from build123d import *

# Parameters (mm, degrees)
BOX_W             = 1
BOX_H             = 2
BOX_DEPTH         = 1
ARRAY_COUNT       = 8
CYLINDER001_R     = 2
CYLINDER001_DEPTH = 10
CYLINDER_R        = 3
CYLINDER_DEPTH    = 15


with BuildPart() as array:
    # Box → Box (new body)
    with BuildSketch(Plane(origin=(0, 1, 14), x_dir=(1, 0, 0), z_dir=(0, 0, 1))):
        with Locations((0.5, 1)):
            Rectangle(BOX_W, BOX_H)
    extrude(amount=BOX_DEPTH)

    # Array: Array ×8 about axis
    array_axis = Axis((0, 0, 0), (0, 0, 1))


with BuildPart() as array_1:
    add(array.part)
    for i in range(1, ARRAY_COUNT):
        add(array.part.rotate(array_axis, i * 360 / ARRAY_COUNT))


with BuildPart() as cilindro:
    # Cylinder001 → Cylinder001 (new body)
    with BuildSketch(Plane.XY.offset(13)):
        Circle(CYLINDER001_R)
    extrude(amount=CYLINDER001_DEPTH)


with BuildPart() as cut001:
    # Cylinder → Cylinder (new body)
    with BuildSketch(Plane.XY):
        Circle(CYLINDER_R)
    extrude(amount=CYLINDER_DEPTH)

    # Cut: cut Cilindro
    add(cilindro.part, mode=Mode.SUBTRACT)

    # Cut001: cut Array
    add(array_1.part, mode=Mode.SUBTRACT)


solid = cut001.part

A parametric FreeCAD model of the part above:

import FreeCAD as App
import Part
import Sketcher
from FreeCAD import Vector
Q = App.Units.Quantity


def add_polygon(sketch, points):
    """Adds a closed chain of lines whose ends are joined by coincident constraints."""
    first, n = sketch.GeometryCount, len(points)
    for a, b in zip(points, points[1:] + points[:1]):
        sketch.addGeometry(Part.LineSegment(App.Vector(*a, 0), App.Vector(*b, 0)), False)
    for i in range(n):
        sketch.addConstraint(Sketcher.Constraint("Coincident", first + i, 2, first + (i + 1) % n, 1))

doc = App.newDocument("Part")
body = doc.addObject("PartDesign::Body", "Body")

# Sketch on XY plane
sketch1 = body.newObject("Sketcher::SketchObject", "Sketch")
sketch1.AttachmentSupport = (doc.getObject("XY_Plane"), [""])
sketch1.MapMode = "FlatFace"
sketch1.AttachmentOffset = App.Placement(Vector(0, 0, 14), App.Rotation())
add_polygon(sketch1, [(0, 3), (0, 1), (1, 1), (1, 3)])  # lines 0-3
sketch1.addConstraint(Sketcher.Constraint("Vertical", 0))
sketch1.addConstraint(Sketcher.Constraint("Horizontal", 1))
sketch1.addConstraint(Sketcher.Constraint("Vertical", 2))
sketch1.addConstraint(Sketcher.Constraint("Horizontal", 3))
sketch1.addConstraint(Sketcher.Constraint("PointOnObject", 0, 2, -2))
sketch1.addConstraint(Sketcher.Constraint("DistanceX", 1, 1, 1, 2, Q("1 mm")))
sketch1.addConstraint(Sketcher.Constraint("DistanceY", 0, 2, 0, 1, Q("2 mm")))
sketch1.addConstraint(Sketcher.Constraint("DistanceY", -1, 1, 0, 2, Q("1 mm")))
pad1 = body.newObject("PartDesign::Pad", "Pad")
pad1.Profile = sketch1
pad1.Length = 1
body2 = doc.addObject("PartDesign::Body", "Body001")
body2.AllowCompound = True
doc.recompute()

body2.BaseFeature = body
doc.recompute()

body3 = doc.addObject("PartDesign::Body", "Body002")
body3.BaseFeature = body
body3.Placement = App.Placement(Vector(0, 0, 0), App.Rotation(Vector(0, 0, 1), 45))
boolean = body2.newObject("PartDesign::Boolean", "Boolean")
boolean.Type = "Fuse"
boolean.addObjects([body3])
doc.recompute()

body4 = doc.addObject("PartDesign::Body", "Body003")
body4.BaseFeature = body
body4.Placement = App.Placement(Vector(0, 0, 0), App.Rotation(Vector(0, 0, 1), 90))
boolean2 = body2.newObject("PartDesign::Boolean", "Boolean001")
boolean2.Type = "Fuse"
boolean2.addObjects([body4])
doc.recompute()

body5 = doc.addObject("PartDesign::Body", "Body004")
body5.BaseFeature = body
body5.Placement = App.Placement(Vector(0, 0, 0), App.Rotation(Vector(0, 0, 1), 135))
boolean3 = body2.newObject("PartDesign::Boolean", "Boolean002")
boolean3.Type = "Fuse"
boolean3.addObjects([body5])
doc.recompute()

body6 = doc.addObject("PartDesign::Body", "Body005")
body6.BaseFeature = body
body6.Placement = App.Placement(Vector(0, 0, 0), App.Rotation(Vector(0, 0, 1), 180))
boolean4 = body2.newObject("PartDesign::Boolean", "Boolean003")
boolean4.Type = "Fuse"
boolean4.addObjects([body6])
doc.recompute()

body7 = doc.addObject("PartDesign::Body", "Body006")
body7.BaseFeature = body
body7.Placement = App.Placement(Vector(0, 0, 0), App.Rotation(Vector(0, 0, 1), 225))
boolean5 = body2.newObject("PartDesign::Boolean", "Boolean004")
boolean5.Type = "Fuse"
boolean5.addObjects([body7])
doc.recompute()

body8 = doc.addObject("PartDesign::Body", "Body007")
body8.BaseFeature = body
body8.Placement = App.Placement(Vector(0, 0, 0), App.Rotation(Vector(0, 0, 1), 270))
boolean6 = body2.newObject("PartDesign::Boolean", "Boolean005")
boolean6.Type = "Fuse"
boolean6.addObjects([body8])
doc.recompute()

body.Placement = App.Placement(Vector(0, 0, 0), App.Rotation(Vector(0, 0, 1), 315))
boolean7 = body2.newObject("PartDesign::Boolean", "Boolean006")
boolean7.Type = "Fuse"
boolean7.addObjects([body])
body9 = doc.addObject("PartDesign::Body", "Body008")

# Sketch on XY plane
sketch2 = body9.newObject("Sketcher::SketchObject", "Sketch001")
sketch2.AttachmentSupport = (doc.getObject("XY_Plane008"), [""])
sketch2.MapMode = "FlatFace"
sketch2.AttachmentOffset = App.Placement(Vector(0, 0, 13), App.Rotation())
sketch2.addGeometry(Part.Circle(Vector(0, 0, 0), Vector(0, 0, 1), 2), False)
sketch2.addConstraint(Sketcher.Constraint("Coincident", 0, 3, -1, 1))
sketch2.addConstraint(Sketcher.Constraint("Diameter", 0, Q("4 mm")))
pad2 = body9.newObject("PartDesign::Pad", "Pad001")
pad2.Profile = sketch2
pad2.Length = 10
body10 = doc.addObject("PartDesign::Body", "Body009")

# Sketch on XY plane
sketch3 = body10.newObject("Sketcher::SketchObject", "Sketch002")
sketch3.AttachmentSupport = (doc.getObject("XY_Plane009"), [""])
sketch3.MapMode = "FlatFace"
sketch3.addGeometry(Part.Circle(Vector(0, 0, 0), Vector(0, 0, 1), 3), False)
sketch3.addConstraint(Sketcher.Constraint("Coincident", 0, 3, -1, 1))
sketch3.addConstraint(Sketcher.Constraint("Diameter", 0, Q("6 mm")))
pad3 = body10.newObject("PartDesign::Pad", "Pad002")
pad3.Profile = sketch3
pad3.Length = 15
doc.recompute()

boolean8 = body10.newObject("PartDesign::Boolean", "Boolean007")
boolean8.Type = "Cut"
boolean8.addObjects([body9])
doc.recompute()

boolean9 = body10.newObject("PartDesign::Boolean", "Boolean008")
boolean9.Type = "Cut"
boolean9.addObjects([body2])

doc.recompute()
